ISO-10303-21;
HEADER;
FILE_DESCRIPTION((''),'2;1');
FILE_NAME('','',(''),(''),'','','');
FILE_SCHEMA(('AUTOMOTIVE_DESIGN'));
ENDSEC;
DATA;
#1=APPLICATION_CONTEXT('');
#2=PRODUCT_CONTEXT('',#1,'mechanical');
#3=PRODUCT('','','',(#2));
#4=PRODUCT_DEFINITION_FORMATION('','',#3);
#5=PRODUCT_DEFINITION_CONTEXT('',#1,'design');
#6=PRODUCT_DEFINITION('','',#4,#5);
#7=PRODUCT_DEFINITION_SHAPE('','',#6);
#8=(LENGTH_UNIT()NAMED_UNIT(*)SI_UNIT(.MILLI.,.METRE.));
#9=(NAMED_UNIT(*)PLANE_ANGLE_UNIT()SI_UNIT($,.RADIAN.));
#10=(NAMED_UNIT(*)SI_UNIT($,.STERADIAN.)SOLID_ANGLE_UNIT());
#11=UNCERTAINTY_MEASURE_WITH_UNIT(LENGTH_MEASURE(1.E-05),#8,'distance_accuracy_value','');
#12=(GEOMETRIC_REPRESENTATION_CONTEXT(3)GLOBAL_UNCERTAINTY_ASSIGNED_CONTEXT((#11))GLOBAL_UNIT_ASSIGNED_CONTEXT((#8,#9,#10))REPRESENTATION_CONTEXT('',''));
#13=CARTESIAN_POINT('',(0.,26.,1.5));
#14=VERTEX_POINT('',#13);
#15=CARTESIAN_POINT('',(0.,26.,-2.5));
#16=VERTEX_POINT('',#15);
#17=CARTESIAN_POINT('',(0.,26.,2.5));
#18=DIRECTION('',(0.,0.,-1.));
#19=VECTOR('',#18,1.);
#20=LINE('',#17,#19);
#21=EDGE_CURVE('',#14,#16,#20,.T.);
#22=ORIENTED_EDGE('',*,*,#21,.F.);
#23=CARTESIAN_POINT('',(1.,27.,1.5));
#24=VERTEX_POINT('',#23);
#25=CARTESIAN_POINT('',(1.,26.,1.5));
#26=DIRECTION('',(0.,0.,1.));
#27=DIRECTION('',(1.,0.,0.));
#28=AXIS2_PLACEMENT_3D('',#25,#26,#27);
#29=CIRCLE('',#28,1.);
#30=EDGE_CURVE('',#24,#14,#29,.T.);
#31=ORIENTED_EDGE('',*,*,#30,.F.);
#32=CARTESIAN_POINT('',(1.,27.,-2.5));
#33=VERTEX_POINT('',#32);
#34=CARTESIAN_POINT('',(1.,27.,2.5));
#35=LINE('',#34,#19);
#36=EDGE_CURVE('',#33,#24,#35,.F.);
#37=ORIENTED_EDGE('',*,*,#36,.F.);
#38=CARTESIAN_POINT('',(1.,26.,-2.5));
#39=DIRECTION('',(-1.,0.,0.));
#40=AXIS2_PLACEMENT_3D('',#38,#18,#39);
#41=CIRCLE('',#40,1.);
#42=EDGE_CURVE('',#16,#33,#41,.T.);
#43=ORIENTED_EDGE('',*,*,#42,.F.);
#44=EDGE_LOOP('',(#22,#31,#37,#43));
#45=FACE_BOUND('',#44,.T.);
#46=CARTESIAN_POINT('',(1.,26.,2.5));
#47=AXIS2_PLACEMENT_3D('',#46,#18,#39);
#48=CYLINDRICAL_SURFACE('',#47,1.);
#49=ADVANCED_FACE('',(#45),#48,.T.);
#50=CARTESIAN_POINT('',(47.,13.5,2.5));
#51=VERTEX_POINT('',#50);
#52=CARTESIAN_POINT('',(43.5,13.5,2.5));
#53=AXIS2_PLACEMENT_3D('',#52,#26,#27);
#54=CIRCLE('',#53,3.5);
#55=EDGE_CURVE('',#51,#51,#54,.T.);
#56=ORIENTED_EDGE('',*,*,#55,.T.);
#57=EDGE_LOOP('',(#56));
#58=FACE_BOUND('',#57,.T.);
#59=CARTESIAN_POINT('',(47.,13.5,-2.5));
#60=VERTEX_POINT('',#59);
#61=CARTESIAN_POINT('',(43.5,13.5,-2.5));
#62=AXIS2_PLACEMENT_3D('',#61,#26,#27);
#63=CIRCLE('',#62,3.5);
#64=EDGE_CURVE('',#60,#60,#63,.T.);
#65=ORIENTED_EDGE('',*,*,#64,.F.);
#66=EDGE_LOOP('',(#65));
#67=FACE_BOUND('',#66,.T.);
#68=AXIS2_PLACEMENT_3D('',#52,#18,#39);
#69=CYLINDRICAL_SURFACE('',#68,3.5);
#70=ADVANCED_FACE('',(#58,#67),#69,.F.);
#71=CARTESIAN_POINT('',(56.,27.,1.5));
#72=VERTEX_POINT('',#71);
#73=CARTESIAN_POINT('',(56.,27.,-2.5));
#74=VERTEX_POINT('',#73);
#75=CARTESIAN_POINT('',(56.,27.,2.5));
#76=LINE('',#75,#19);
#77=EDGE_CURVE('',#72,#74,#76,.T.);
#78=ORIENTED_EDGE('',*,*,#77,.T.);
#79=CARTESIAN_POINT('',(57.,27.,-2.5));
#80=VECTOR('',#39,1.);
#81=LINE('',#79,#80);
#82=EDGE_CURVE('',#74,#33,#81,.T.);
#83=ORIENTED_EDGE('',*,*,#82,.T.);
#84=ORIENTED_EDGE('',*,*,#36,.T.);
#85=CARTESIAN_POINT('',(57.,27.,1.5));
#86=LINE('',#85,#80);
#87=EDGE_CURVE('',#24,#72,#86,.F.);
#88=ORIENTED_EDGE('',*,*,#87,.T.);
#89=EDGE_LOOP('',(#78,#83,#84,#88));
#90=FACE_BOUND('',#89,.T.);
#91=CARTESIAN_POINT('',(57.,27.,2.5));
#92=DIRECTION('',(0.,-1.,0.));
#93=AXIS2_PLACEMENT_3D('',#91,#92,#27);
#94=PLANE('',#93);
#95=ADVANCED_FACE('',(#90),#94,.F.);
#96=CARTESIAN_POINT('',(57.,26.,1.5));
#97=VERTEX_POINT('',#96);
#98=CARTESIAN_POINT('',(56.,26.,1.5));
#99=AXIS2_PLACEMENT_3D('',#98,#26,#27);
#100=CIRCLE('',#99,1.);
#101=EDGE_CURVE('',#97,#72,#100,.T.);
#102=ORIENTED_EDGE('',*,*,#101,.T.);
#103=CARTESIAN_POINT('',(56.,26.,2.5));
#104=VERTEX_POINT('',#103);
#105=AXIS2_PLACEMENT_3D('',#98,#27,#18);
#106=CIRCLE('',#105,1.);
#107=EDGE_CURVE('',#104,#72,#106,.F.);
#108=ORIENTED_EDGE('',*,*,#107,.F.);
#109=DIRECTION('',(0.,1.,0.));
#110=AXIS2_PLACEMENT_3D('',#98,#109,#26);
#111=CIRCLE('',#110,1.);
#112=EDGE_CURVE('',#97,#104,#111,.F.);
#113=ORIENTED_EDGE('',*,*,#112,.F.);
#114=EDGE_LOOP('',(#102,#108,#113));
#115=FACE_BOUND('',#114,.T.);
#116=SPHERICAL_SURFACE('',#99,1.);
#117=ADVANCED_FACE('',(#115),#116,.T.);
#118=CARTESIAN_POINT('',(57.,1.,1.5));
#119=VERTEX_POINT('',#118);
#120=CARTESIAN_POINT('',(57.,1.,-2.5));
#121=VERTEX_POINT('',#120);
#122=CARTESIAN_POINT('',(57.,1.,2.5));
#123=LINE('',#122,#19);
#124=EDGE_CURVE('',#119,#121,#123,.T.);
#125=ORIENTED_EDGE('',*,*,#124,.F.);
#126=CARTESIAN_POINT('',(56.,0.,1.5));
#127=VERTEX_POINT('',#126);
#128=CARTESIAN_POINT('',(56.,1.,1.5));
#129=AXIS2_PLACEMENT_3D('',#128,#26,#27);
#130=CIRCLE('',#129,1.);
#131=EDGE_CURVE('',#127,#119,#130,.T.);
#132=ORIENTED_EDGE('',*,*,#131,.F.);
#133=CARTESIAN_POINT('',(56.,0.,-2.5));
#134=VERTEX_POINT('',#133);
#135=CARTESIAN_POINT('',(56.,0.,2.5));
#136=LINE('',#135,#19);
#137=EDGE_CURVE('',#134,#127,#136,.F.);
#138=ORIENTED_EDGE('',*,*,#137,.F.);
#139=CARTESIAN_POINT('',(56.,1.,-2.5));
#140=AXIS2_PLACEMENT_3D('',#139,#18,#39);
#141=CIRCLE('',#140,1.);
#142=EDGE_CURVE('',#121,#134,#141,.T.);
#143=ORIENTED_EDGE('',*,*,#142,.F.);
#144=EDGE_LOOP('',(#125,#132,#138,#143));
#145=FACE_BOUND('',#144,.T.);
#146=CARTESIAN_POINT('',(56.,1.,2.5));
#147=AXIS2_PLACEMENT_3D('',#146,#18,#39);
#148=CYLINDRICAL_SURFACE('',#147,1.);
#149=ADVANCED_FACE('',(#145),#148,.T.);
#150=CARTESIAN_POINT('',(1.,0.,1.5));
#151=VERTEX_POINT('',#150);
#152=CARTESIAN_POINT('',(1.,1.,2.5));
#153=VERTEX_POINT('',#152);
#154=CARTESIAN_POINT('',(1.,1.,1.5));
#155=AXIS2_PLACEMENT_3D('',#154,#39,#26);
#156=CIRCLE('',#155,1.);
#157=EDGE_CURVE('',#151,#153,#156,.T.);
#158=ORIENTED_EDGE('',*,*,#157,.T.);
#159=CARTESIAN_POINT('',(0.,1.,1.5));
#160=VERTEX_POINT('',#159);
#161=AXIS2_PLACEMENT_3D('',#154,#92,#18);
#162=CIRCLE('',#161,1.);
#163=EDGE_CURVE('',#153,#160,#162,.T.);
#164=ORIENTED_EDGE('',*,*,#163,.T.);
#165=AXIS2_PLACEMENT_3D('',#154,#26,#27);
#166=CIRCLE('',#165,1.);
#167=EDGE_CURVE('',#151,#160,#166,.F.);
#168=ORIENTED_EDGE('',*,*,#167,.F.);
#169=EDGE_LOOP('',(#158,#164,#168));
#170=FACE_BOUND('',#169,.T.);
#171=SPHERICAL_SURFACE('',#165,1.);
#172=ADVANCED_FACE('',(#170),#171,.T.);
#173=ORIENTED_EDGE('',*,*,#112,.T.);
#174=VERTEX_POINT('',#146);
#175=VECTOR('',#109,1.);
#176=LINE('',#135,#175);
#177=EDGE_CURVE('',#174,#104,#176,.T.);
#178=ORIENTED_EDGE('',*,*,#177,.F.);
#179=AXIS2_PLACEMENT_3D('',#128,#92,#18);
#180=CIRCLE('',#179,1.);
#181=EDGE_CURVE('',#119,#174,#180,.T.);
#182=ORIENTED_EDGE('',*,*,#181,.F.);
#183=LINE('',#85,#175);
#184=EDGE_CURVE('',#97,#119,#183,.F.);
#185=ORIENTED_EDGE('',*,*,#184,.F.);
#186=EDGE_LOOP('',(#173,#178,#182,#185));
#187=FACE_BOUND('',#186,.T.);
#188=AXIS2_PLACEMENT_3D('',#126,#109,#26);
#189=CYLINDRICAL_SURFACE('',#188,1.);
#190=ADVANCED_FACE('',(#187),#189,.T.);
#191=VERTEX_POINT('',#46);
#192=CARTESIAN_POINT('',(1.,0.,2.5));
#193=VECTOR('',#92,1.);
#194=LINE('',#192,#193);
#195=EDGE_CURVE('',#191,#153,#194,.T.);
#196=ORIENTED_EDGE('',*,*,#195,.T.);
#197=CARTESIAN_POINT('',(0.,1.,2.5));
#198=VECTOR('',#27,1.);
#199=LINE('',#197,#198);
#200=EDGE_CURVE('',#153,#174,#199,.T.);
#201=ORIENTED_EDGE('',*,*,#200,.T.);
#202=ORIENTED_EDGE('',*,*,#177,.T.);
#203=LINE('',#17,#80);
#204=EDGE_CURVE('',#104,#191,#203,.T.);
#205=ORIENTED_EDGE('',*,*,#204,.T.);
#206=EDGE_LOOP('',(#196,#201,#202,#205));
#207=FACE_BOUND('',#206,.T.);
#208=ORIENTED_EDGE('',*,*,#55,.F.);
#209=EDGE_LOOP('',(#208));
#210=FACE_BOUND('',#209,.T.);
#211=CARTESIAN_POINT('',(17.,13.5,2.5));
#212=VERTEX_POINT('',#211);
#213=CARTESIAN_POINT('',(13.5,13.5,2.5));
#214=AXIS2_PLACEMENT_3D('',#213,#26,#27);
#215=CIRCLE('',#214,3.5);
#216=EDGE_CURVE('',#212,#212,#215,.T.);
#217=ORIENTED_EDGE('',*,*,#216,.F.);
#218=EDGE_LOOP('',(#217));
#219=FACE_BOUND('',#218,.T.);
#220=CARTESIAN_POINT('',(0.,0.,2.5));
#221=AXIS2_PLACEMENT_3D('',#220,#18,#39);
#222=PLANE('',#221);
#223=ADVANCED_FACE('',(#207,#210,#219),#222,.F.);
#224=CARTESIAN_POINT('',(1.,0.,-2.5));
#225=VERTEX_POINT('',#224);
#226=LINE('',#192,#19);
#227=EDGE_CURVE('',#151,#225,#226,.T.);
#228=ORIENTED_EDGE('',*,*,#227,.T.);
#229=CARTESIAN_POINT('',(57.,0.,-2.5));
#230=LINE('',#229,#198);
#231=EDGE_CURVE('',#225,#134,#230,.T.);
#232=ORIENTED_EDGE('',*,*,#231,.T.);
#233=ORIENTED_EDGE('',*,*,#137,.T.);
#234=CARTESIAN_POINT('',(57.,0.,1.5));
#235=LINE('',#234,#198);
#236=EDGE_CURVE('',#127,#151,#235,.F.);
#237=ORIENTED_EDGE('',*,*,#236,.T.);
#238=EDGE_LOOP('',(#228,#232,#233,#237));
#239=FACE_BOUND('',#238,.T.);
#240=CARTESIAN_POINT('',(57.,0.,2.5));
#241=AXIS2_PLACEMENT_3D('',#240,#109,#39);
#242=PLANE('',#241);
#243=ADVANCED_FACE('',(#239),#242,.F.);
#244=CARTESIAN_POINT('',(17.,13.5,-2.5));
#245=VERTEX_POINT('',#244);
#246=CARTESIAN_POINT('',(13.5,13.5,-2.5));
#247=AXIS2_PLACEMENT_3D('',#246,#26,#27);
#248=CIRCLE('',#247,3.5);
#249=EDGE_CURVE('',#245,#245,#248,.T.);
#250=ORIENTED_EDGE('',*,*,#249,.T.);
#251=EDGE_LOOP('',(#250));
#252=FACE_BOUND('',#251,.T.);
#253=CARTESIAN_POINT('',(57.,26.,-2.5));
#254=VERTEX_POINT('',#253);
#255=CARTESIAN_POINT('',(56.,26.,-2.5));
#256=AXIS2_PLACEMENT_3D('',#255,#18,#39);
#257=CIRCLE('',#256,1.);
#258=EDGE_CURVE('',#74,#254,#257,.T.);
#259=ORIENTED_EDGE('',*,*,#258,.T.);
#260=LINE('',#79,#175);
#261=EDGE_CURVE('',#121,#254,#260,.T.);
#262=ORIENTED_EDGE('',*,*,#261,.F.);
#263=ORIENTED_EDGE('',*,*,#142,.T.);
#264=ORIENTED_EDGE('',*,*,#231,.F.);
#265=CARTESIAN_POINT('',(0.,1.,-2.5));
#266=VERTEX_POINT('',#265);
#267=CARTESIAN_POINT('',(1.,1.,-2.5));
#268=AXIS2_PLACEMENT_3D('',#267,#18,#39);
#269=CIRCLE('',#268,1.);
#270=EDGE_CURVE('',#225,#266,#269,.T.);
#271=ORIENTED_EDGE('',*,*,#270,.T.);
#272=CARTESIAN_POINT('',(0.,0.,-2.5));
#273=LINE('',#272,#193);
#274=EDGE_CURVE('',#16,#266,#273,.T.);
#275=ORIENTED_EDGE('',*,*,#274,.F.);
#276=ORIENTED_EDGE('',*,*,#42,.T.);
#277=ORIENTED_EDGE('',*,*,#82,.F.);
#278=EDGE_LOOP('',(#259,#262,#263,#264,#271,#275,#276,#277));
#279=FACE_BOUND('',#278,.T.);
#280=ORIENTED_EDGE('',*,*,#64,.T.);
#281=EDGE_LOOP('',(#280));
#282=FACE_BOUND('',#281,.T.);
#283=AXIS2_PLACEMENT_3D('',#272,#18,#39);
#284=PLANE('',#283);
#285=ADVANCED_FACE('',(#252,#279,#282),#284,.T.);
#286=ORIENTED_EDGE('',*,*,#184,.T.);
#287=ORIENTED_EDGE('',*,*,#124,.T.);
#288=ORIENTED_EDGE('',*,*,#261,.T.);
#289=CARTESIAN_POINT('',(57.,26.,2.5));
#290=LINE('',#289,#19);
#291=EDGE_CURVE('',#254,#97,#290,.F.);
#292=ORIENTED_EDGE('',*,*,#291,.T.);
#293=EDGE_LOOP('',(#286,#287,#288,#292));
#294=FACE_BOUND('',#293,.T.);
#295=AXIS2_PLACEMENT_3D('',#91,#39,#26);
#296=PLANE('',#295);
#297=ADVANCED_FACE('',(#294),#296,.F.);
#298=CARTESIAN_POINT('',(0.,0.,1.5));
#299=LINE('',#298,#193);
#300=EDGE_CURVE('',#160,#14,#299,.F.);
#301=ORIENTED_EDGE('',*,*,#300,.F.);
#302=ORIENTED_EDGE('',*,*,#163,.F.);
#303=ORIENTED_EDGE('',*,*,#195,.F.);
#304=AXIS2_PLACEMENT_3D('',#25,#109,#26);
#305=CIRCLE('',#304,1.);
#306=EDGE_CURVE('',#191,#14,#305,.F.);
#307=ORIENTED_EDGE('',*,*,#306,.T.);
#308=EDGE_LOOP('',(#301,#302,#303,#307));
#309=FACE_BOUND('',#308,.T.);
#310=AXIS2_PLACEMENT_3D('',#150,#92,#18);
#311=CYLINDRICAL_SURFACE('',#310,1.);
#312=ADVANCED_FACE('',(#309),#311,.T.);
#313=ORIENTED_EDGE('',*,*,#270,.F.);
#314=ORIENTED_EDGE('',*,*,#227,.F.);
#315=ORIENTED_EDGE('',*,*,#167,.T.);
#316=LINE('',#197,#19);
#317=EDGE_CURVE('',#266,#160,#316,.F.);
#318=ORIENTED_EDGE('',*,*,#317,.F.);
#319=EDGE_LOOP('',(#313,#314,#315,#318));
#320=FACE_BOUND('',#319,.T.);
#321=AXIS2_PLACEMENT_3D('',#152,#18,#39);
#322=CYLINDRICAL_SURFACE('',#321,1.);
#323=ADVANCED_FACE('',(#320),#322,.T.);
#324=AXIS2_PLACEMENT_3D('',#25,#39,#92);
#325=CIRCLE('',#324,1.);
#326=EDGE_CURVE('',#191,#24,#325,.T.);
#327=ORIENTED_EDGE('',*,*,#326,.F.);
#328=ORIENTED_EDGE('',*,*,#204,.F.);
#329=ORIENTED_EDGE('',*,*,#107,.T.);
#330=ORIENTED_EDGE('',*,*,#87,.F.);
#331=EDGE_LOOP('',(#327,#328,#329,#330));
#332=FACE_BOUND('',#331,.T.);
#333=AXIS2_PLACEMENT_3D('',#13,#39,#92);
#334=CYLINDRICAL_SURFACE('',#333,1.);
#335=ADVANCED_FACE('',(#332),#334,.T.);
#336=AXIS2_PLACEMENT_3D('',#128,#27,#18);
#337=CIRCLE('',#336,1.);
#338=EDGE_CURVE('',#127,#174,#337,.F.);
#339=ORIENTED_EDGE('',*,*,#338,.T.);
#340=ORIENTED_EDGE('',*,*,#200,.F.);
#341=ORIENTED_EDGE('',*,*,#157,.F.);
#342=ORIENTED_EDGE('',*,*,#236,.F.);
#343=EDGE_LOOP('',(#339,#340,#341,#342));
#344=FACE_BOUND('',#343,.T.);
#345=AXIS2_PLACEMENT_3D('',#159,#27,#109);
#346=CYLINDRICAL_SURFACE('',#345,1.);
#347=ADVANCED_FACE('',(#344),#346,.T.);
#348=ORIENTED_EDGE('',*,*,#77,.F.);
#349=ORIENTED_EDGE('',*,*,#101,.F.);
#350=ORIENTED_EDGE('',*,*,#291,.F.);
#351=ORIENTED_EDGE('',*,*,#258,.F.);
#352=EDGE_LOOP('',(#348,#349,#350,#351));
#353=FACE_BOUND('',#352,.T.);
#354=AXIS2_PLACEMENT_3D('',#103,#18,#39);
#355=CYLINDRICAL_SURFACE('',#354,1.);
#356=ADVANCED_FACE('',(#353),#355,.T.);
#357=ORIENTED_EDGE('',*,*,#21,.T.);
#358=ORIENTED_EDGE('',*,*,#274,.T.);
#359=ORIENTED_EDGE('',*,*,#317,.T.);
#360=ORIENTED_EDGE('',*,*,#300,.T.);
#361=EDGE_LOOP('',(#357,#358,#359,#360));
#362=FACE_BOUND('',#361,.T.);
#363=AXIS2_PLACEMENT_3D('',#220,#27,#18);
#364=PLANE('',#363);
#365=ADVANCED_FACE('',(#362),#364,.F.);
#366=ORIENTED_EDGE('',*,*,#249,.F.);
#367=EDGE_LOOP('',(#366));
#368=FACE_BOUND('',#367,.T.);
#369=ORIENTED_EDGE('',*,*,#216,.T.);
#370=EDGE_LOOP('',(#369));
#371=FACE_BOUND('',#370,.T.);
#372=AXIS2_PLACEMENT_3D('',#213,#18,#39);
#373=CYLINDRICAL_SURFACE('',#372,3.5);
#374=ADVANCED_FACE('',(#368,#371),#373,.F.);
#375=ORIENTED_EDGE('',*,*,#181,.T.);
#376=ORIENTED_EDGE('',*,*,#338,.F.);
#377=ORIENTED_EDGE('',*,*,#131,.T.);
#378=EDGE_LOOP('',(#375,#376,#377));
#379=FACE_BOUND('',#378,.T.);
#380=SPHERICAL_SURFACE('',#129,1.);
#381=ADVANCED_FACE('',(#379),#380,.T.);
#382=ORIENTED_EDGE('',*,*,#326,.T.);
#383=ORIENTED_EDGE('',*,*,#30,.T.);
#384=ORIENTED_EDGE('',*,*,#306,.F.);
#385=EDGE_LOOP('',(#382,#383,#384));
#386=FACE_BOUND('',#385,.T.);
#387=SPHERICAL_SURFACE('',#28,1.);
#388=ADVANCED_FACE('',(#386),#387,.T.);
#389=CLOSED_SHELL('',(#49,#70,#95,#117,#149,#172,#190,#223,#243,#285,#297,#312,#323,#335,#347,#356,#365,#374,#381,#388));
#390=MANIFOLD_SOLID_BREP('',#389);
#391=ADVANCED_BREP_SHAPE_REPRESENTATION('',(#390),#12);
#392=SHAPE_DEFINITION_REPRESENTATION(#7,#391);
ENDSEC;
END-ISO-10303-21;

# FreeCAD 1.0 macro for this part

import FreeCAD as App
import Part
import Sketcher
from FreeCAD import Vector


def edges_at(feature, points):
    """Names of the edges that pass closest to the given points."""
    edges = feature.Shape.Edges
    near = lambda p: min(range(len(edges)), key=lambda i: edges[i].distToShape(Part.Vertex(*p))[0])
    return sorted({f"Edge{near(p) + 1}" for p in points})


def add_polygon(sketch, points):
    """Adds a closed chain of lines whose ends are joined by coincident constraints."""
    first, n = sketch.GeometryCount, len(points)
    for a, b in zip(points, points[1:] + points[:1]):
        sketch.addGeometry(Part.LineSegment(App.Vector(*a, 0), App.Vector(*b, 0)), False)
    for i in range(n):
        sketch.addConstraint(Sketcher.Constraint("Coincident", first + i, 2, first + (i + 1) % n, 1))

doc = App.newDocument("Part")
body = doc.addObject("PartDesign::Body", "Body")

# Sketch on XY plane
sketch1 = body.newObject("Sketcher::SketchObject", "Sketch")
sketch1.AttachmentSupport = (doc.getObject("XY_Plane"), [""])
sketch1.MapMode = "FlatFace"
add_polygon(sketch1, [(0, 27), (0, 0), (57, 0), (57, 27)])  # lines 0-3
sketch1.addGeometry(Part.Circle(Vector(13.5, 13.5, 0), Vector(0, 0, 1), 3.5), False)  # 4
sketch1.addGeometry(Part.Circle(Vector(43.5, 13.5, 0), Vector(0, 0, 1), 3.5), False)  # 5
sketch1.addConstraint(Sketcher.Constraint("Vertical", 0))
sketch1.addConstraint(Sketcher.Constraint("Horizontal", 1))
sketch1.addConstraint(Sketcher.Constraint("Vertical", 2))
sketch1.addConstraint(Sketcher.Constraint("Horizontal", 3))
sketch1.addConstraint(Sketcher.Constraint("Coincident", 0, 2, -1, 1))
sketch1.addConstraint(Sketcher.Constraint("Equal", 4, 5))
sketch1.addConstraint(Sketcher.Constraint("Horizontal", 4, 3, 5, 3))
sketch1.addConstraint(Sketcher.Constraint("Diameter", 4, 7.0))
sketch1.addConstraint(Sketcher.Constraint("DistanceX", 1, 1, 1, 2, 57.0))
sketch1.addConstraint(Sketcher.Constraint("DistanceY", 0, 2, 0, 1, 27.0))
sketch1.addConstraint(Sketcher.Constraint("DistanceX", 4, 3, 5, 3, 30.0))
sketch1.addConstraint(Sketcher.Constraint("DistanceX", -1, 1, 4, 3, 13.5))
sketch1.addConstraint(Sketcher.Constraint("DistanceY", -1, 1, 4, 3, 13.5))
pad1 = body.newObject("PartDesign::Pad", "Pad")
pad1.Profile = sketch1
pad1.Length = 5
pad1.Midplane = True
doc.recompute()

fillet = body.newObject("PartDesign::Fillet", "Fillet")
fillet.Base = (pad1, edges_at(pad1, [
    (28.5, 27, 2.5),
    (0, 13.5, 2.5),
    (28.5, 0, 2.5),
    (57, 13.5, 2.5),
    (0, 0, 0),
    (0, 27, 0),
    (57, 27, 0),
    (57, 0, 0),
]))
fillet.Radius = 1

doc.recompute()
